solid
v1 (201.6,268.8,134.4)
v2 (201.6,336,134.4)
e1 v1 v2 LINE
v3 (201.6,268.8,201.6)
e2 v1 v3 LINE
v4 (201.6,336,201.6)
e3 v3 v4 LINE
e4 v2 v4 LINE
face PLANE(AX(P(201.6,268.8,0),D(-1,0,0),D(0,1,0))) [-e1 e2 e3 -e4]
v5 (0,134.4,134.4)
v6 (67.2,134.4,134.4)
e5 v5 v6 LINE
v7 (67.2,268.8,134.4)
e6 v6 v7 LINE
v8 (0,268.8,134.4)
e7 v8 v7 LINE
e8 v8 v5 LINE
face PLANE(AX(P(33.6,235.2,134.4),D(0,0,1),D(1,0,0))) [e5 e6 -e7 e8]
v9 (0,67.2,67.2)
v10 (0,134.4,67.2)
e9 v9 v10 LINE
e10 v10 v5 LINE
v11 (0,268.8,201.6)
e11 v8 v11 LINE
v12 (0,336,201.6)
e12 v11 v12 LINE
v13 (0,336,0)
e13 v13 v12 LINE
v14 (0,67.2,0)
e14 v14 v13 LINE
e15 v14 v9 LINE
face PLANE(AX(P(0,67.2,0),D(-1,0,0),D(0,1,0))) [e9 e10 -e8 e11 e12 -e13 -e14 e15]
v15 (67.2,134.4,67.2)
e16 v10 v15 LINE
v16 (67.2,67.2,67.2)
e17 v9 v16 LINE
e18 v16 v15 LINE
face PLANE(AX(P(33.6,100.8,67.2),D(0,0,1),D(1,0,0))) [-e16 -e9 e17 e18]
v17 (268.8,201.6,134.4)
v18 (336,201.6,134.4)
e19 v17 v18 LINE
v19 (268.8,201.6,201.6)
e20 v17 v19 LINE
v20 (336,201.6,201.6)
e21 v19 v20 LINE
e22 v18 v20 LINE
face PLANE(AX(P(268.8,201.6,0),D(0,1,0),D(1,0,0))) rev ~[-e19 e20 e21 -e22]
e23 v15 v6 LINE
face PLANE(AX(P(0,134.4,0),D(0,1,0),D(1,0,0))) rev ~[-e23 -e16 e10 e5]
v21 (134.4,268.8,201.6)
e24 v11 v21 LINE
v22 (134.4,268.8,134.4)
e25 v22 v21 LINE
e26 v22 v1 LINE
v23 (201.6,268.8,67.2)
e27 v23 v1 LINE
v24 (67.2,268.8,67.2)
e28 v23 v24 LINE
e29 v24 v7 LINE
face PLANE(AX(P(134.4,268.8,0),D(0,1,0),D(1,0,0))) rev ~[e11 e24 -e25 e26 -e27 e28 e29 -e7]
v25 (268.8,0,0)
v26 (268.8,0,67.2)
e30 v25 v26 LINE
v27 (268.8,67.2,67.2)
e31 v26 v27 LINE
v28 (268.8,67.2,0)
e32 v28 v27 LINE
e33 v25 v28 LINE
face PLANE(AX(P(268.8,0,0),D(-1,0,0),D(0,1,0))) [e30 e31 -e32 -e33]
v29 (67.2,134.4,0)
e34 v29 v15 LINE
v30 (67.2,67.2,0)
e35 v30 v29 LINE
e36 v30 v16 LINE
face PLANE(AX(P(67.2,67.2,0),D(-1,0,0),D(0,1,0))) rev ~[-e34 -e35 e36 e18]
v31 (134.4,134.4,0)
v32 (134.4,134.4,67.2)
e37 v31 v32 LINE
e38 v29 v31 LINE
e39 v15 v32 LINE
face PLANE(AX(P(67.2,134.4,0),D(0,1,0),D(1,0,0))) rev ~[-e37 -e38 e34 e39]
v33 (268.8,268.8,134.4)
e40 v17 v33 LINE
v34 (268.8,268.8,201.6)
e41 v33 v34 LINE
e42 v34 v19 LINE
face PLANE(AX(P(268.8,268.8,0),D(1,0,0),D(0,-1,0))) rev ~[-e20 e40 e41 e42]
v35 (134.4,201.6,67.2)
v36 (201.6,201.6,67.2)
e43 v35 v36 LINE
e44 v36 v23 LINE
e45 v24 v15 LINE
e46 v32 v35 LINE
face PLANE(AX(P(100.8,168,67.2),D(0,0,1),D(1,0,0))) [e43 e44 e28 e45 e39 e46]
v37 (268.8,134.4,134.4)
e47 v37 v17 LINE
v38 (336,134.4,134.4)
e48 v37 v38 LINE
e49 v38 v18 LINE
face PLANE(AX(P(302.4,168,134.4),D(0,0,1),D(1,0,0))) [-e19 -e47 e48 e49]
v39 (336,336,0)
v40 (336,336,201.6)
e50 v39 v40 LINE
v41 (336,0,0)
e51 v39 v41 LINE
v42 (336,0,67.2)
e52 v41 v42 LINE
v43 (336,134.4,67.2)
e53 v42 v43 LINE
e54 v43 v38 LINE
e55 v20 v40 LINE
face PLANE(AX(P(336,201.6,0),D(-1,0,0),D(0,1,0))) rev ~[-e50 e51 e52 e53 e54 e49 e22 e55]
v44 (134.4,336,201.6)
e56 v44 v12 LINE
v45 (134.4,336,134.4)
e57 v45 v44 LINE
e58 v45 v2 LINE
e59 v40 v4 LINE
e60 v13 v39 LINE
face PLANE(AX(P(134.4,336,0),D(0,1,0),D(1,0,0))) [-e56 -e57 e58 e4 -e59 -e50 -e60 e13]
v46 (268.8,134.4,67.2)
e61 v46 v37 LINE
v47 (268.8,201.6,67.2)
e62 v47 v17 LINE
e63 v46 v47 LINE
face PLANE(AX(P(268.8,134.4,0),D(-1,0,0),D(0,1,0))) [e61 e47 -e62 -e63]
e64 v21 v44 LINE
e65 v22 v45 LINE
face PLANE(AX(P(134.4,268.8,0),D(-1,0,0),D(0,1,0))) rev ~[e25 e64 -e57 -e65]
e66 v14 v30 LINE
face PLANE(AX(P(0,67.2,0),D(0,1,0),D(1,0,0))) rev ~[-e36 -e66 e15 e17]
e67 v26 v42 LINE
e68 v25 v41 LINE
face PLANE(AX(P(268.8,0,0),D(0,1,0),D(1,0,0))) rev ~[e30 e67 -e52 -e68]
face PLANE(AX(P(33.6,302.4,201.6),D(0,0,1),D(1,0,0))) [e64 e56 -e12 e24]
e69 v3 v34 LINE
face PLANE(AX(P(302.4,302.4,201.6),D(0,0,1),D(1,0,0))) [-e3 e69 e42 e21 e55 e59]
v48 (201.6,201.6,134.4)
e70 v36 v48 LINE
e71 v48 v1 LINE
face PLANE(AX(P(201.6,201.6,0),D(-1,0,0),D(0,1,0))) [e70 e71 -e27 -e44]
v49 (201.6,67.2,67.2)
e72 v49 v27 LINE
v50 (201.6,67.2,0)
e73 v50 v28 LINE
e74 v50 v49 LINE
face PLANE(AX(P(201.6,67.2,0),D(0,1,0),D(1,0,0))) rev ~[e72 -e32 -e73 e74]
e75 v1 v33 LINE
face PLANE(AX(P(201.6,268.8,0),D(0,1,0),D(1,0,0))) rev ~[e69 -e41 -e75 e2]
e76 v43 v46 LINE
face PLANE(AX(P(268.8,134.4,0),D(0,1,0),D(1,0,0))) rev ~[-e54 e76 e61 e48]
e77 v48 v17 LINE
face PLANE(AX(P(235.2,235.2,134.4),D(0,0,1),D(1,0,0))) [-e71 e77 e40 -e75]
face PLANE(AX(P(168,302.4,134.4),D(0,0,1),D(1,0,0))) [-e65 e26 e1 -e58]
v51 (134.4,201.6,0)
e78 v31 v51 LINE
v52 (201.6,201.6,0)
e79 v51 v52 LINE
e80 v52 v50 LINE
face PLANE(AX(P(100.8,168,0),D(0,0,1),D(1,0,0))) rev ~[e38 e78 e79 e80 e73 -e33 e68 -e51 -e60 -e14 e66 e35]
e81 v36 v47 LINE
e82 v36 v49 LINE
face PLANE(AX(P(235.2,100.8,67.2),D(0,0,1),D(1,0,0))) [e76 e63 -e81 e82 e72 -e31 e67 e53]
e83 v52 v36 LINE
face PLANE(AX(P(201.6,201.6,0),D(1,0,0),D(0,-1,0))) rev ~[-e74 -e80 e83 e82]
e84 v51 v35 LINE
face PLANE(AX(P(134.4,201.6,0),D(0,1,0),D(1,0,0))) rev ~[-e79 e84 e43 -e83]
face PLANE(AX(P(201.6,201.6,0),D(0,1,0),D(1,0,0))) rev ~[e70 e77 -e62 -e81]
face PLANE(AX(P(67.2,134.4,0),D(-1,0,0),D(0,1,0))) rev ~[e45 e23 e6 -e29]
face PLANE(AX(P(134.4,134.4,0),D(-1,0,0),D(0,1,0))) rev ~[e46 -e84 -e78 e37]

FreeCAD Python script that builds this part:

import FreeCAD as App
import Part
import Sketcher

doc = App.newDocument("Part")
params = doc.addObject("Spreadsheet::Sheet", "Params")
for row, (alias, value) in enumerate([
    ("sketch1_width", "134.4 mm"),
    ("pad1_length", "201.6 mm"),
    ("sketch2_width", "67.2 mm"),
    ("pad2_length", "134.4 mm"),
    ("sketch3_width", "67.2 mm"),
    ("pad3_length", "67.2 mm"),
], start=1):
    params.set(f"A{row}", alias)
    params.set(f"B{row}", "=" + value)
    params.setAlias(f"B{row}", alias)

body = doc.addObject("PartDesign::Body", "Body")
body.AllowCompound = True

sketch1 = doc.addObject("Sketcher::SketchObject", "Sketch")
body.addObject(sketch1)
sketch1.AttachmentSupport = (doc.XY_Plane, [""])
sketch1.MapMode = "FlatFace"
sketch1.addGeometry([
    Part.LineSegment(App.Vector(0, 336, 0), App.Vector(0, 268.8, 0)),
    Part.LineSegment(App.Vector(0, 268.8, 0), App.Vector(134.4, 268.8, 0)),
    Part.LineSegment(App.Vector(134.4, 268.8, 0), App.Vector(134.4, 336, 0)),
    Part.LineSegment(App.Vector(134.4, 336, 0), App.Vector(0, 336, 0)),
    Part.LineSegment(App.Vector(268.8, 268.8, 0), App.Vector(268.8, 201.6, 0)),
    Part.LineSegment(App.Vector(268.8, 201.6, 0), App.Vector(336, 201.6, 0)),
    Part.LineSegment(App.Vector(336, 201.6, 0), App.Vector(336, 336, 0)),
    Part.LineSegment(App.Vector(336, 336, 0), App.Vector(201.6, 336, 0)),
    Part.LineSegment(App.Vector(201.6, 336, 0), App.Vector(201.6, 268.8, 0)),
    Part.LineSegment(App.Vector(201.6, 268.8, 0), App.Vector(268.8, 268.8, 0)),
], False)
sketch1.addConstraint([
    Sketcher.Constraint("Coincident", 0, 2, 1, 1),
    Sketcher.Constraint("Coincident", 1, 2, 2, 1),
    Sketcher.Constraint("Coincident", 2, 2, 3, 1),
    Sketcher.Constraint("Coincident", 3, 2, 0, 1),
    Sketcher.Constraint("Coincident", 4, 2, 5, 1),
    Sketcher.Constraint("Coincident", 5, 2, 6, 1),
    Sketcher.Constraint("Coincident", 6, 2, 7, 1),
    Sketcher.Constraint("Coincident", 7, 2, 8, 1),
    Sketcher.Constraint("Coincident", 8, 2, 9, 1),
    Sketcher.Constraint("Coincident", 9, 2, 4, 1),
    Sketcher.Constraint("Vertical", 0),
    Sketcher.Constraint("Horizontal", 1),
    Sketcher.Constraint("Vertical", 2),
    Sketcher.Constraint("Horizontal", 3),
    Sketcher.Constraint("Vertical", 4),
    Sketcher.Constraint("Horizontal", 5),
    Sketcher.Constraint("Vertical", 6),
    Sketcher.Constraint("Horizontal", 7),
    Sketcher.Constraint("Vertical", 8),
    Sketcher.Constraint("Horizontal", 9),
    Sketcher.Constraint("PointOnObject", 0, 2, -2),
    Sketcher.Constraint("Horizontal", 3, 2, 6, 2),
    Sketcher.Constraint("Horizontal", 1, 2, 8, 2),
    Sketcher.Constraint("Equal", 3, 7),
    Sketcher.Constraint("Equal", 5, 9),
    Sketcher.Constraint("Equal", 9, 0),
    Sketcher.Constraint("Equal", 2, 4),
    Sketcher.Constraint("DistanceX", 1, 1, 1, 2, 134.4),
    Sketcher.Constraint("DistanceY", -1, 1, 2, 2, 336.0),
    Sketcher.Constraint("DistanceX", -1, 1, 5, 2, 336.0),
])
sketch1.setExpression("Constraints[27]", "Params.sketch1_width")
pad1 = doc.addObject("PartDesign::Pad", "Pad")
body.addObject(pad1)
pad1.Profile = sketch1
pad1.setExpression("Length", "Params.pad1_length")
body2 = doc.addObject("PartDesign::Body", "Body001")
body2.AllowCompound = True

sketch2 = doc.addObject("Sketcher::SketchObject", "Sketch001")
body2.addObject(sketch2)
sketch2.AttachmentSupport = (doc.getObject("XY_Plane001"), [""])
sketch2.MapMode = "FlatFace"
sketch2.addGeometry([
    Part.LineSegment(App.Vector(0, 268.8, 0), App.Vector(0, 134.4, 0)),
    Part.LineSegment(App.Vector(0, 134.4, 0), App.Vector(67.2, 134.4, 0)),
    Part.LineSegment(App.Vector(67.2, 134.4, 0), App.Vector(67.2, 268.8, 0)),
    Part.LineSegment(App.Vector(67.2, 268.8, 0), App.Vector(0, 268.8, 0)),
    Part.LineSegment(App.Vector(201.6, 268.8, 0), App.Vector(201.6, 201.6, 0)),
    Part.LineSegment(App.Vector(201.6, 201.6, 0), App.Vector(268.8, 201.6, 0)),
    Part.LineSegment(App.Vector(268.8, 201.6, 0), App.Vector(268.8, 268.8, 0)),
    Part.LineSegment(App.Vector(268.8, 268.8, 0), App.Vector(201.6, 268.8, 0)),
    Part.LineSegment(App.Vector(268.8, 201.6, 0), App.Vector(268.8, 134.4, 0)),
    Part.LineSegment(App.Vector(268.8, 134.4, 0), App.Vector(336, 134.4, 0)),
    Part.LineSegment(App.Vector(336, 134.4, 0), App.Vector(336, 201.6, 0)),
    Part.LineSegment(App.Vector(336, 201.6, 0), App.Vector(268.8, 201.6, 0)),
    Part.LineSegment(App.Vector(134.4, 336, 0), App.Vector(134.4, 268.8, 0)),
    Part.LineSegment(App.Vector(134.4, 268.8, 0), App.Vector(201.6, 268.8, 0)),
    Part.LineSegment(App.Vector(201.6, 268.8, 0), App.Vector(201.6, 336, 0)),
    Part.LineSegment(App.Vector(201.6, 336, 0), App.Vector(134.4, 336, 0)),
], False)
sketch2.addConstraint([
    Sketcher.Constraint("Coincident", 0, 2, 1, 1),
    Sketcher.Constraint("Coincident", 1, 2, 2, 1),
    Sketcher.Constraint("Coincident", 2, 2, 3, 1),
    Sketcher.Constraint("Coincident", 3, 2, 0, 1),
    Sketcher.Constraint("Coincident", 4, 2, 5, 1),
    Sketcher.Constraint("Coincident", 5, 2, 6, 1),
    Sketcher.Constraint("Coincident", 6, 2, 7, 1),
    Sketcher.Constraint("Coincident", 7, 2, 4, 1),
    Sketcher.Constraint("Coincident", 8, 2, 9, 1),
    Sketcher.Constraint("Coincident", 9, 2, 10, 1),
    Sketcher.Constraint("Coincident", 10, 2, 11, 1),
    Sketcher.Constraint("Coincident", 11, 2, 8, 1),
    Sketcher.Constraint("Coincident", 12, 2, 13, 1),
    Sketcher.Constraint("Coincident", 13, 2, 14, 1),
    Sketcher.Constraint("Coincident", 14, 2, 15, 1),
    Sketcher.Constraint("Coincident", 15, 2, 12, 1),
    Sketcher.Constraint("Vertical", 0),
    Sketcher.Constraint("Horizontal", 1),
    Sketcher.Constraint("Vertical", 2),
    Sketcher.Constraint("Horizontal", 3),
    Sketcher.Constraint("Vertical", 4),
    Sketcher.Constraint("Horizontal", 5),
    Sketcher.Constraint("Vertical", 6),
    Sketcher.Constraint("Horizontal", 7),
    Sketcher.Constraint("Vertical", 8),
    Sketcher.Constraint("Horizontal", 9),
    Sketcher.Constraint("Vertical", 10),
    Sketcher.Constraint("Horizontal", 11),
    Sketcher.Constraint("Vertical", 12),
    Sketcher.Constraint("Horizontal", 13),
    Sketcher.Constraint("Vertical", 14),
    Sketcher.Constraint("Horizontal", 15),
    Sketcher.Constraint("Coincident", 11, 2, 5, 2),
    Sketcher.Constraint("Coincident", 13, 2, 7, 2),
    Sketcher.Constraint("PointOnObject", 0, 2, -2),
    Sketcher.Constraint("Horizontal", 3, 2, 6, 2),
    Sketcher.Constraint("Horizontal", 1, 2, 8, 2),
    Sketcher.Constraint("Equal", 3, 5),
    Sketcher.Constraint("Equal", 7, 9),
    Sketcher.Constraint("Equal", 11, 13),
    Sketcher.Constraint("Equal", 15, 4),
    Sketcher.Constraint("Equal", 6, 8),
    Sketcher.Constraint("Equal", 10, 12),
    Sketcher.Constraint("DistanceX", 1, 1, 1, 2, 67.2),
    Sketcher.Constraint("DistanceX", -1, 1, 9, 2, 336.0),
    Sketcher.Constraint("DistanceY", -1, 1, 14, 2, 336.0),
])
sketch2.setExpression("Constraints[43]", "Params.sketch2_width")
pad2 = doc.addObject("PartDesign::Pad", "Pad001")
body2.addObject(pad2)
pad2.Profile = sketch2
pad2.setExpression("Length", "Params.pad2_length")
doc.recompute()

boolean = doc.addObject("PartDesign::Boolean", "Boolean")
body.addObject(boolean)
boolean.Type = "Fuse"
boolean.addObjects([body2])

sketch3 = doc.addObject("Sketcher::SketchObject", "Sketch002")
body.addObject(sketch3)
sketch3.AttachmentSupport = (doc.XY_Plane, [""])
sketch3.MapMode = "FlatFace"
sketch3.addGeometry([
    Part.LineSegment(App.Vector(67.2, 134.4, 0), App.Vector(134.4, 134.4, 0)),
    Part.LineSegment(App.Vector(134.4, 134.4, 0), App.Vector(134.4, 201.6, 0)),
    Part.LineSegment(App.Vector(134.4, 201.6, 0), App.Vector(201.6, 201.6, 0)),
    Part.LineSegment(App.Vector(201.6, 201.6, 0), App.Vector(201.6, 268.8, 0)),
    Part.LineSegment(App.Vector(201.6, 268.8, 0), App.Vector(67.2, 268.8, 0)),
    Part.LineSegment(App.Vector(67.2, 268.8, 0), App.Vector(67.2, 134.4, 0)),
    Part.LineSegment(App.Vector(0, 134.4, 0), App.Vector(0, 67.2, 0)),
    Part.LineSegment(App.Vector(0, 67.2, 0), App.Vector(67.2, 67.2, 0)),
    Part.LineSegment(App.Vector(67.2, 67.2, 0), App.Vector(67.2, 134.4, 0)),
    Part.LineSegment(App.Vector(67.2, 134.4, 0), App.Vector(0, 134.4, 0)),
    Part.LineSegment(App.Vector(201.6, 67.2, 0), App.Vector(268.8, 67.2, 0)),
    Part.LineSegment(App.Vector(268.8, 67.2, 0), App.Vector(268.8, 0, 0)),
    Part.LineSegment(App.Vector(268.8, 0, 0), App.Vector(336, 0, 0)),
    Part.LineSegment(App.Vector(336, 0, 0), App.Vector(336, 134.4, 0)),
    Part.LineSegment(App.Vector(336, 134.4, 0), App.Vector(268.8, 134.4, 0)),
    Part.LineSegment(App.Vector(268.8, 134.4, 0), App.Vector(268.8, 201.6, 0)),
    Part.LineSegment(App.Vector(268.8, 201.6, 0), App.Vector(201.6, 201.6, 0)),
    Part.LineSegment(App.Vector(201.6, 201.6, 0), App.Vector(201.6, 67.2, 0)),
], False)
sketch3.addConstraint([
    Sketcher.Constraint("Coincident", 0, 2, 1, 1),
    Sketcher.Constraint("Coincident", 1, 2, 2, 1),
    Sketcher.Constraint("Coincident", 2, 2, 3, 1),
    Sketcher.Constraint("Coincident", 3, 2, 4, 1),
    Sketcher.Constraint("Coincident", 4, 2, 5, 1),
    Sketcher.Constraint("Coincident", 5, 2, 0, 1),
    Sketcher.Constraint("Coincident", 6, 2, 7, 1),
    Sketcher.Constraint("Coincident", 7, 2, 8, 1),
    Sketcher.Constraint("Coincident", 8, 2, 9, 1),
    Sketcher.Constraint("Coincident", 9, 2, 6, 1),
    Sketcher.Constraint("Coincident", 10, 2, 11, 1),
    Sketcher.Constraint("Coincident", 11, 2, 12, 1),
    Sketcher.Constraint("Coincident", 12, 2, 13, 1),
    Sketcher.Constraint("Coincident", 13, 2, 14, 1),
    Sketcher.Constraint("Coincident", 14, 2, 15, 1),
    Sketcher.Constraint("Coincident", 15, 2, 16, 1),
    Sketcher.Constraint("Coincident", 16, 2, 17, 1),
    Sketcher.Constraint("Coincident", 17, 2, 10, 1),
    Sketcher.Constraint("Horizontal", 0),
    Sketcher.Constraint("Vertical", 1),
    Sketcher.Constraint("Horizontal", 2),
    Sketcher.Constraint("Vertical", 3),
    Sketcher.Constraint("Horizontal", 4),
    Sketcher.Constraint("Vertical", 5),
    Sketcher.Constraint("Vertical", 6),
    Sketcher.Constraint("Horizontal", 7),
    Sketcher.Constraint("Vertical", 8),
    Sketcher.Constraint("Horizontal", 9),
    Sketcher.Constraint("Horizontal", 10),
    Sketcher.Constraint("Vertical", 11),
    Sketcher.Constraint("Horizontal", 12),
    Sketcher.Constraint("Vertical", 13),
    Sketcher.Constraint("Horizontal", 14),
    Sketcher.Constraint("Vertical", 15),
    Sketcher.Constraint("Horizontal", 16),
    Sketcher.Constraint("Vertical", 17),
    Sketcher.Constraint("Coincident", 8, 2, 5, 2),
    Sketcher.Constraint("Coincident", 16, 2, 2, 2),
    Sketcher.Constraint("PointOnObject", 6, 2, -2),
    Sketcher.Constraint("PointOnObject", 11, 2, -1),
    Sketcher.Constraint("Horizontal", 7, 2, 10, 2),
    Sketcher.Constraint("Horizontal", 9, 2, 13, 2),
    Sketcher.Constraint("Vertical", 11, 2, 14, 2),
    Sketcher.Constraint("Equal", 0, 2),
    Sketcher.Constraint("Equal", 2, 7),
    Sketcher.Constraint("Equal", 9, 10),
    Sketcher.Constraint("Equal", 10, 12),
    Sketcher.Constraint("Equal", 16, 1),
    Sketcher.Constraint("Equal", 1, 3),
    Sketcher.Constraint("Equal", 3, 6),
    Sketcher.Constraint("Equal", 8, 11),
    Sketcher.Constraint("DistanceX", 0, 1, 0, 2, 67.2),
])
sketch3.setExpression("Constraints[51]", "Params.sketch3_width")
pad3 = doc.addObject("PartDesign::Pad", "Pad002")
body.addObject(pad3)
pad3.Profile = sketch3
pad3.setExpression("Length", "Params.pad3_length")

doc.recompute()
